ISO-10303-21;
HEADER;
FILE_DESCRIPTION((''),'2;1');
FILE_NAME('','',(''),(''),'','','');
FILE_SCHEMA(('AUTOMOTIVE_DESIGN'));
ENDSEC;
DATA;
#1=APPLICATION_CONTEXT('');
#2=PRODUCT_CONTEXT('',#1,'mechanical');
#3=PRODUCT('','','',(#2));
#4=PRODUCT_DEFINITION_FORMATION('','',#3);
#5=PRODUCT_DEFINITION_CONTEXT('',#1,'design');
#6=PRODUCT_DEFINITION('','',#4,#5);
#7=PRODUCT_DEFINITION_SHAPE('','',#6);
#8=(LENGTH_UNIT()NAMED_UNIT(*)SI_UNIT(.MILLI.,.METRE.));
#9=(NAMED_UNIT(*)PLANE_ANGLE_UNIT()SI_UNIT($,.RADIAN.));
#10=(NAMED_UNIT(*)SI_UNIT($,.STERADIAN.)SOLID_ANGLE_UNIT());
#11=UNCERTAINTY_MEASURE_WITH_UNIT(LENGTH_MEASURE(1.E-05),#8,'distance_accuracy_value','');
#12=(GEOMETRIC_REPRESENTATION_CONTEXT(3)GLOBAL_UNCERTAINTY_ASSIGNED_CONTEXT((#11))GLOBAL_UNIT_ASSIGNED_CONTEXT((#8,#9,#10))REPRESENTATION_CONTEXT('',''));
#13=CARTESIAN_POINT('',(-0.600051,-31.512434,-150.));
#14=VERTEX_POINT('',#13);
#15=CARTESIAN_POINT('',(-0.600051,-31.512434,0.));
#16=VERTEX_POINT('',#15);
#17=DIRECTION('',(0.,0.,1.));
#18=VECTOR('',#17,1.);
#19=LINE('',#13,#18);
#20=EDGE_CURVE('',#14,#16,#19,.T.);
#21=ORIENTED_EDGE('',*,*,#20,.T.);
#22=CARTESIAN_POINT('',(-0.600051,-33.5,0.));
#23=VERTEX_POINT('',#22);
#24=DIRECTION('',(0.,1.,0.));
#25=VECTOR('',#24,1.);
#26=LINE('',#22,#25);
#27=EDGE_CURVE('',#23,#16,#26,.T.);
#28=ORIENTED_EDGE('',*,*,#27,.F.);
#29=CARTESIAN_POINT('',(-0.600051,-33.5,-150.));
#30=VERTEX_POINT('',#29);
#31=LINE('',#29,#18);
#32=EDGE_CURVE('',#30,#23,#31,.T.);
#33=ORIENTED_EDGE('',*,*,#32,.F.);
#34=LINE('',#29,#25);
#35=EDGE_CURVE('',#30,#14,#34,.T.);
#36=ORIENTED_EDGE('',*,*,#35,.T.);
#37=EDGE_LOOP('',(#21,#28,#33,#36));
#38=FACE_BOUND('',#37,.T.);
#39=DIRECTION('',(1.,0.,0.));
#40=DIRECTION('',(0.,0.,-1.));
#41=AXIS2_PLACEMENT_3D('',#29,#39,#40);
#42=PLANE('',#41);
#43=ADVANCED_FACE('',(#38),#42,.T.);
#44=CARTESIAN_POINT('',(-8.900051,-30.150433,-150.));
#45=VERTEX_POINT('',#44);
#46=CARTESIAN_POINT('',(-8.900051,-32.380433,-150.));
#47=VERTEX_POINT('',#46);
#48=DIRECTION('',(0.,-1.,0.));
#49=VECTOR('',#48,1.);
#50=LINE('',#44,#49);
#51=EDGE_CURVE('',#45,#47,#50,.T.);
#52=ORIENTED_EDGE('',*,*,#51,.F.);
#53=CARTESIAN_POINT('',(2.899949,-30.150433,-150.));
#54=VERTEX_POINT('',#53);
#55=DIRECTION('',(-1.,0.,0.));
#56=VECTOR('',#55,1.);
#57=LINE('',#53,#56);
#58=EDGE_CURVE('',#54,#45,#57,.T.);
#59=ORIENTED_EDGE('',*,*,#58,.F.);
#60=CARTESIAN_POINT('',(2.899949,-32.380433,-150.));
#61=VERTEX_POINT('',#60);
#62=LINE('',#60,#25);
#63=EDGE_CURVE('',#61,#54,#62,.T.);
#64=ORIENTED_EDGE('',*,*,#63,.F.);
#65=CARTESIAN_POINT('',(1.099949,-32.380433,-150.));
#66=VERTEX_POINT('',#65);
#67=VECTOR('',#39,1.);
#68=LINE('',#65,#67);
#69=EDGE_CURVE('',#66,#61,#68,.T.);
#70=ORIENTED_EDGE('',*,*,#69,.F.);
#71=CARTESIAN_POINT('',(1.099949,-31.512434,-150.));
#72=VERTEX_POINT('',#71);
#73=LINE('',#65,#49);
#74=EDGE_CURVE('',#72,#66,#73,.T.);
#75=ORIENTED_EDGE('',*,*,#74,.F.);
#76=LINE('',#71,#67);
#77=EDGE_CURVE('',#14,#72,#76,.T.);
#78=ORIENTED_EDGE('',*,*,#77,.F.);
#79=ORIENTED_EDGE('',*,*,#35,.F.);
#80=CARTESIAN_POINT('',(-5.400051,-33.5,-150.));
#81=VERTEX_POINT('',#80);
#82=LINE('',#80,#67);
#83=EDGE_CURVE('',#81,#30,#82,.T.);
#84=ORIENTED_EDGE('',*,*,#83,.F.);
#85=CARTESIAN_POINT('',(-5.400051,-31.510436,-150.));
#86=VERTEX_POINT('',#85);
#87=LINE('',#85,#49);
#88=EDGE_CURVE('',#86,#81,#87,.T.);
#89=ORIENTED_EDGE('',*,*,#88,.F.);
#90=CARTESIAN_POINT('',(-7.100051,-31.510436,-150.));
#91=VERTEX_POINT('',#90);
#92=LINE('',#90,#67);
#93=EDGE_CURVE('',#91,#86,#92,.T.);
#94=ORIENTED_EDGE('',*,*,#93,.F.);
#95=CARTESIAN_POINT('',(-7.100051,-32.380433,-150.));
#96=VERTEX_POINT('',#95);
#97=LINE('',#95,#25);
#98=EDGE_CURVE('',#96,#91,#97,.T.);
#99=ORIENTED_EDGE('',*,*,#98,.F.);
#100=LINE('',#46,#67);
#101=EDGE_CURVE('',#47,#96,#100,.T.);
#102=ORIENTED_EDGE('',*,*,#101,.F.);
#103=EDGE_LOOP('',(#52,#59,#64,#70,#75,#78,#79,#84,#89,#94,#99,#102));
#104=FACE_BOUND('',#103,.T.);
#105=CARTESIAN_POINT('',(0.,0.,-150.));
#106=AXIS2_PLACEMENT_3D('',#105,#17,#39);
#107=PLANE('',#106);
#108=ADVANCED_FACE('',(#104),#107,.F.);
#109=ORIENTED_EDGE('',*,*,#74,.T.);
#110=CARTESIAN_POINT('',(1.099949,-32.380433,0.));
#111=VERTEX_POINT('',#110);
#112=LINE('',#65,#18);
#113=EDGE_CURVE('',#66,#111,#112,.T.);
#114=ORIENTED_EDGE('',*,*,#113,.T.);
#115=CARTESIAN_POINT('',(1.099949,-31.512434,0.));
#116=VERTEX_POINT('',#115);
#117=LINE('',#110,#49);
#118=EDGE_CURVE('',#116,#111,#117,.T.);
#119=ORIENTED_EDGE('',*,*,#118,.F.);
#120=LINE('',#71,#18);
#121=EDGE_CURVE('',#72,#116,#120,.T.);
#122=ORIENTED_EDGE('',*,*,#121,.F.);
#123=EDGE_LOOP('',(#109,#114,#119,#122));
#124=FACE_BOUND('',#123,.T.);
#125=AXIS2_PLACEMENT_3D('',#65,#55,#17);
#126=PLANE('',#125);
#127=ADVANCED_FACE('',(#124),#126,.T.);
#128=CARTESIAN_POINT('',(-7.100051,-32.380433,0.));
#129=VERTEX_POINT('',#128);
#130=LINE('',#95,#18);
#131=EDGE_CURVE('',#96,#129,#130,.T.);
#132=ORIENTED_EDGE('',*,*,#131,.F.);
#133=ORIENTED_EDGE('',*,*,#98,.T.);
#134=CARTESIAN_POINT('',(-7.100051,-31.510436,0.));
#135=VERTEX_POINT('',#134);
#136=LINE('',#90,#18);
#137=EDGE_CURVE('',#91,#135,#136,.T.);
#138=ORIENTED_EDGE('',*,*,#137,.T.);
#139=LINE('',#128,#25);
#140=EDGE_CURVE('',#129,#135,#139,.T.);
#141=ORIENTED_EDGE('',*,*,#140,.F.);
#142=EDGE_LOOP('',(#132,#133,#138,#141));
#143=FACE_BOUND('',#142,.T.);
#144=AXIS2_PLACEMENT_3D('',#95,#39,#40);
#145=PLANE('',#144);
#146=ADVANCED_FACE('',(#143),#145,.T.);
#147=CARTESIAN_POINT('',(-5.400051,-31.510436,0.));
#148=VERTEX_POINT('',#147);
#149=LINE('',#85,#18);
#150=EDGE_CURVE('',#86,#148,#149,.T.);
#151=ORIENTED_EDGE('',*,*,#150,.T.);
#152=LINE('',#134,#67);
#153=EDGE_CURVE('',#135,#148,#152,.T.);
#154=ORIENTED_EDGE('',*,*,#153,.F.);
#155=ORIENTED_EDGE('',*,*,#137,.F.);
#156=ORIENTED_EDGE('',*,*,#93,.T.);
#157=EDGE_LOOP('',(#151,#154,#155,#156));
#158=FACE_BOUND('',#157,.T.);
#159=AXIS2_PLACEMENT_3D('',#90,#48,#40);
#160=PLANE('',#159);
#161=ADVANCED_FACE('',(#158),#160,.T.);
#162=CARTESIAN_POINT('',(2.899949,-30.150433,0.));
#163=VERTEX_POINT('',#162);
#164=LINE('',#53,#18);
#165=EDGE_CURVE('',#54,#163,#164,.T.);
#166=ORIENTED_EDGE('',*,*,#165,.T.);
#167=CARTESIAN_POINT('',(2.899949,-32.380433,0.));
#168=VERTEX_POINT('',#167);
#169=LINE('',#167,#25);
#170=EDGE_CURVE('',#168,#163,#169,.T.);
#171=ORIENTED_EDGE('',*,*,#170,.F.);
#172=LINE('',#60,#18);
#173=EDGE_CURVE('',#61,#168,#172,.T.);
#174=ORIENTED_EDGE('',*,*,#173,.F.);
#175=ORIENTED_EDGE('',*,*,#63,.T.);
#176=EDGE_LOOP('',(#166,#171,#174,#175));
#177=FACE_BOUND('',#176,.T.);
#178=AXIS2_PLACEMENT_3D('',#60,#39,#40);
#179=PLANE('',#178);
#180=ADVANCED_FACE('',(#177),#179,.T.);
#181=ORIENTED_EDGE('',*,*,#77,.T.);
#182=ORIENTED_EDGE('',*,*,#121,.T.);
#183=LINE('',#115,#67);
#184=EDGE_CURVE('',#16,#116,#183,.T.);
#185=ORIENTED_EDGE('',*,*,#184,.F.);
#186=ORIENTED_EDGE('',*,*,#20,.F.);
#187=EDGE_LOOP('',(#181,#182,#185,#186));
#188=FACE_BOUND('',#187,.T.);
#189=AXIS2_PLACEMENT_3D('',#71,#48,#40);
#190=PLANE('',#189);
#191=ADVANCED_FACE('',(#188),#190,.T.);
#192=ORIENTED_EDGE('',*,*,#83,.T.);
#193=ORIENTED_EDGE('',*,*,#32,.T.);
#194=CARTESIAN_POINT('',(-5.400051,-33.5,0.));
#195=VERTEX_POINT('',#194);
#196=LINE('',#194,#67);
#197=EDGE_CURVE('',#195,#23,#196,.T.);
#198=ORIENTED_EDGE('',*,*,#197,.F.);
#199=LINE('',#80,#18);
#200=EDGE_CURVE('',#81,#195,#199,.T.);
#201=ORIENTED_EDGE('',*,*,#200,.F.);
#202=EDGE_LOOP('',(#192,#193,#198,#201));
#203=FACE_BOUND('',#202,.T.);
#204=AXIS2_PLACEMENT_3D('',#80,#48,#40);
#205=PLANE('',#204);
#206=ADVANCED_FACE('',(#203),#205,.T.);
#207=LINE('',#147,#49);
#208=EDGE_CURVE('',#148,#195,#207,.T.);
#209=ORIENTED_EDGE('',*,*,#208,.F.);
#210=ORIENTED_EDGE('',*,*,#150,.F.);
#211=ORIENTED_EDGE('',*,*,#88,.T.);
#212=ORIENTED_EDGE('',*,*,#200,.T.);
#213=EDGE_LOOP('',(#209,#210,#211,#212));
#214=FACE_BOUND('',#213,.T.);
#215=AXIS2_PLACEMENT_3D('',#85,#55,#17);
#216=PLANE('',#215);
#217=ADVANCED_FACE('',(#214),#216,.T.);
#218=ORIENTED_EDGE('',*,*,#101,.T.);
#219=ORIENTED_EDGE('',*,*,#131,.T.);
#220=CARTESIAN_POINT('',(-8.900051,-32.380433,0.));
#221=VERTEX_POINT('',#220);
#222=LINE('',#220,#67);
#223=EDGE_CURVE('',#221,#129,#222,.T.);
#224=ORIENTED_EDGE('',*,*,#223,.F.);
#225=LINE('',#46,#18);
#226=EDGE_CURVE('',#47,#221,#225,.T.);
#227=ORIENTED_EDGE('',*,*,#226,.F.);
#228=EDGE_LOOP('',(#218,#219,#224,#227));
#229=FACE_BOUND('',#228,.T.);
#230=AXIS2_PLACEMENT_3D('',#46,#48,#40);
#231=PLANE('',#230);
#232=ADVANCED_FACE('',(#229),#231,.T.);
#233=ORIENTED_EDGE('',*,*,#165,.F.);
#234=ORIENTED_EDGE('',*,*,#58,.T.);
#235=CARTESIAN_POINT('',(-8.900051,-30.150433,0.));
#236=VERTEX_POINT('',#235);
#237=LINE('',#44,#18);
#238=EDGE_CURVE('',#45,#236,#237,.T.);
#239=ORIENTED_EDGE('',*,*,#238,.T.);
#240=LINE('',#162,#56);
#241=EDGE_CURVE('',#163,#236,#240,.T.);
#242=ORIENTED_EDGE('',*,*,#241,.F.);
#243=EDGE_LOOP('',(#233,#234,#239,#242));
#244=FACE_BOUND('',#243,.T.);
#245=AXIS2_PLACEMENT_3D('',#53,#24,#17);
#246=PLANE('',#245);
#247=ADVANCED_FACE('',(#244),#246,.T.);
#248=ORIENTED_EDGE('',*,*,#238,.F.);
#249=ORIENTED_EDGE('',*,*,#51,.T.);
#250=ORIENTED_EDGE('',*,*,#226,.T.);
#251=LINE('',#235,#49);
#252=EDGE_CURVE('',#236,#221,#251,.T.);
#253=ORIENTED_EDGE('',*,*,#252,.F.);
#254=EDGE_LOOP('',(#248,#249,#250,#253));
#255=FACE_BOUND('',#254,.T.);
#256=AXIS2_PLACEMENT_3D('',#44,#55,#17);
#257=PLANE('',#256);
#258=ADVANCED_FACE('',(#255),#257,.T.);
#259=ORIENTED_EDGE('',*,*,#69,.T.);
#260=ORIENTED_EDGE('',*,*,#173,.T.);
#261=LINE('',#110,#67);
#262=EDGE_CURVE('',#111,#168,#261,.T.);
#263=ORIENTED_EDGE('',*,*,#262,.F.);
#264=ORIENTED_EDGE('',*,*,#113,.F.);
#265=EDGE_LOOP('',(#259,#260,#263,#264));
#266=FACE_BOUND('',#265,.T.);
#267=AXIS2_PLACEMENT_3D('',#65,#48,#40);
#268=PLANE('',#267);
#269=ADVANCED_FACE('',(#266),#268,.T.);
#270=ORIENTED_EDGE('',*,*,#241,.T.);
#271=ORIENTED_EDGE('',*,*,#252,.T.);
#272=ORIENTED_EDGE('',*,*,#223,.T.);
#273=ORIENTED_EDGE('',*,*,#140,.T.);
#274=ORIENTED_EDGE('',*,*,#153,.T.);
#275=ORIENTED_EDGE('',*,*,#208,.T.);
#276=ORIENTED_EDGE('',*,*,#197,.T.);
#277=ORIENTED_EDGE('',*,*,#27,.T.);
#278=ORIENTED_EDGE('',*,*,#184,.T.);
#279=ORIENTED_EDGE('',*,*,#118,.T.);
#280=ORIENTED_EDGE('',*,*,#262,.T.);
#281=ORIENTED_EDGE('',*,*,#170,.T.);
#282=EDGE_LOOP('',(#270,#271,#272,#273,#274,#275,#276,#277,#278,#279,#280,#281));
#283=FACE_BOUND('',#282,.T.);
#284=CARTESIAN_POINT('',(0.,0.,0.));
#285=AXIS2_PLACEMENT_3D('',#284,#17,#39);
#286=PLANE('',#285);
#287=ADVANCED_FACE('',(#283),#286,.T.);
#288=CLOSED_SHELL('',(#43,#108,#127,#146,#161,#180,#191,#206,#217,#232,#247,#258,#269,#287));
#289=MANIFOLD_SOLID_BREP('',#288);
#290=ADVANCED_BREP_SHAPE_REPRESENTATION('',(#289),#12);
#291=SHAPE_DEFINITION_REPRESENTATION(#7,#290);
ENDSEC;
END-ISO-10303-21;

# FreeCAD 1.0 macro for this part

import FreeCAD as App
import Part
import Sketcher

V = App.Vector
Q = App.Units.Quantity


def add_polygon(sketch, points):
    """Adds a closed chain of lines whose ends are joined by coincident constraints."""
    first, n = sketch.GeometryCount, len(points)
    for a, b in zip(points, points[1:] + points[:1]):
        sketch.addGeometry(Part.LineSegment(App.Vector(*a, 0), App.Vector(*b, 0)), False)
    for i in range(n):
        sketch.addConstraint(Sketcher.Constraint("Coincident", first + i, 2, first + (i + 1) % n, 1))

doc = App.newDocument("Part")
params = doc.addObject("Spreadsheet::Sheet", "Params")
for row, (alias, value) in enumerate([
    ("sketch1_width", "1.7 mm"),
    ("sketch1_width2", "1.8 mm"),
    ("sketch1_width3", "11.8 mm"),
    ("sketch1_height", "2.23 mm"),
    ("pad1_length", "150 mm"),
], start=1):
    params.set(f"A{row}", alias)
    params.set(f"B{row}", "=" + value)
    params.setAlias(f"B{row}", alias)

body = doc.addObject("PartDesign::Body", "Body")

sketch1 = doc.addObject("Sketcher::SketchObject", "Sketch")
body.addObject(sketch1)
sketch1.AttachmentSupport = (doc.XY_Plane, [""])
sketch1.MapMode = "FlatFace"
add_polygon(sketch1, [(-0.600051, -33.5), (-0.600051, -31.512434), (1.099949, -31.512434), (1.099949, -32.380433), (2.899949, -32.380433), (2.899949, -30.150433), (-8.900051, -30.150433), (-8.900051, -32.380433), (-7.100051, -32.380433), (-7.100051, -31.510436), (-5.400051, -31.510436), (-5.400051, -33.5)])
sketch1.addConstraint([
    Sketcher.Constraint("Vertical", 0),
    Sketcher.Constraint("Horizontal", 1),
    Sketcher.Constraint("Vertical", 2),
    Sketcher.Constraint("Horizontal", 3),
    Sketcher.Constraint("Vertical", 4),
    Sketcher.Constraint("Horizontal", 5),
    Sketcher.Constraint("Vertical", 6),
    Sketcher.Constraint("Horizontal", 7),
    Sketcher.Constraint("Vertical", 8),
    Sketcher.Constraint("Horizontal", 9),
    Sketcher.Constraint("Vertical", 10),
    Sketcher.Constraint("Horizontal", 11),
    Sketcher.Constraint("Horizontal", 3, 2, 6, 2),
    Sketcher.Constraint("Equal", 3, 7),
    Sketcher.Constraint("Equal", 1, 9),
    Sketcher.Constraint("DistanceX", 1, 1, 1, 2, Q("1.7 mm")),
    Sketcher.Constraint("DistanceX", 3, 1, 3, 2, Q("1.8 mm")),
    Sketcher.Constraint("DistanceX", 5, 2, 5, 1, Q("11.8 mm")),
    Sketcher.Constraint("DistanceY", 4, 1, 4, 2, Q("2.23 mm")),
    Sketcher.Constraint("DistanceY", 10, 2, -1, 1, Q("33.5 mm")),
    Sketcher.Constraint("DistanceY", 2, 2, 2, 1, Q("0.868 mm")),
    Sketcher.Constraint("DistanceY", 0, 1, 0, 2, Q("1.987566 mm")),
    Sketcher.Constraint("DistanceY", 8, 1, 8, 2, Q("0.869998 mm")),
    Sketcher.Constraint("DistanceX", 0, 2, -1, 1, Q("0.600051 mm")),
])
sketch1.setExpression("Constraints[27]", "Params.sketch1_width")
sketch1.setExpression("Constraints[28]", "Params.sketch1_width2")
sketch1.setExpression("Constraints[29]", "Params.sketch1_width3")
sketch1.setExpression("Constraints[30]", "Params.sketch1_height")
pad1 = doc.addObject("PartDesign::Pad", "Pad")
body.addObject(pad1)
pad1.Profile = sketch1
pad1.setExpression("Length", "Params.pad1_length")
pad1.Reversed = True

doc.recompute()
